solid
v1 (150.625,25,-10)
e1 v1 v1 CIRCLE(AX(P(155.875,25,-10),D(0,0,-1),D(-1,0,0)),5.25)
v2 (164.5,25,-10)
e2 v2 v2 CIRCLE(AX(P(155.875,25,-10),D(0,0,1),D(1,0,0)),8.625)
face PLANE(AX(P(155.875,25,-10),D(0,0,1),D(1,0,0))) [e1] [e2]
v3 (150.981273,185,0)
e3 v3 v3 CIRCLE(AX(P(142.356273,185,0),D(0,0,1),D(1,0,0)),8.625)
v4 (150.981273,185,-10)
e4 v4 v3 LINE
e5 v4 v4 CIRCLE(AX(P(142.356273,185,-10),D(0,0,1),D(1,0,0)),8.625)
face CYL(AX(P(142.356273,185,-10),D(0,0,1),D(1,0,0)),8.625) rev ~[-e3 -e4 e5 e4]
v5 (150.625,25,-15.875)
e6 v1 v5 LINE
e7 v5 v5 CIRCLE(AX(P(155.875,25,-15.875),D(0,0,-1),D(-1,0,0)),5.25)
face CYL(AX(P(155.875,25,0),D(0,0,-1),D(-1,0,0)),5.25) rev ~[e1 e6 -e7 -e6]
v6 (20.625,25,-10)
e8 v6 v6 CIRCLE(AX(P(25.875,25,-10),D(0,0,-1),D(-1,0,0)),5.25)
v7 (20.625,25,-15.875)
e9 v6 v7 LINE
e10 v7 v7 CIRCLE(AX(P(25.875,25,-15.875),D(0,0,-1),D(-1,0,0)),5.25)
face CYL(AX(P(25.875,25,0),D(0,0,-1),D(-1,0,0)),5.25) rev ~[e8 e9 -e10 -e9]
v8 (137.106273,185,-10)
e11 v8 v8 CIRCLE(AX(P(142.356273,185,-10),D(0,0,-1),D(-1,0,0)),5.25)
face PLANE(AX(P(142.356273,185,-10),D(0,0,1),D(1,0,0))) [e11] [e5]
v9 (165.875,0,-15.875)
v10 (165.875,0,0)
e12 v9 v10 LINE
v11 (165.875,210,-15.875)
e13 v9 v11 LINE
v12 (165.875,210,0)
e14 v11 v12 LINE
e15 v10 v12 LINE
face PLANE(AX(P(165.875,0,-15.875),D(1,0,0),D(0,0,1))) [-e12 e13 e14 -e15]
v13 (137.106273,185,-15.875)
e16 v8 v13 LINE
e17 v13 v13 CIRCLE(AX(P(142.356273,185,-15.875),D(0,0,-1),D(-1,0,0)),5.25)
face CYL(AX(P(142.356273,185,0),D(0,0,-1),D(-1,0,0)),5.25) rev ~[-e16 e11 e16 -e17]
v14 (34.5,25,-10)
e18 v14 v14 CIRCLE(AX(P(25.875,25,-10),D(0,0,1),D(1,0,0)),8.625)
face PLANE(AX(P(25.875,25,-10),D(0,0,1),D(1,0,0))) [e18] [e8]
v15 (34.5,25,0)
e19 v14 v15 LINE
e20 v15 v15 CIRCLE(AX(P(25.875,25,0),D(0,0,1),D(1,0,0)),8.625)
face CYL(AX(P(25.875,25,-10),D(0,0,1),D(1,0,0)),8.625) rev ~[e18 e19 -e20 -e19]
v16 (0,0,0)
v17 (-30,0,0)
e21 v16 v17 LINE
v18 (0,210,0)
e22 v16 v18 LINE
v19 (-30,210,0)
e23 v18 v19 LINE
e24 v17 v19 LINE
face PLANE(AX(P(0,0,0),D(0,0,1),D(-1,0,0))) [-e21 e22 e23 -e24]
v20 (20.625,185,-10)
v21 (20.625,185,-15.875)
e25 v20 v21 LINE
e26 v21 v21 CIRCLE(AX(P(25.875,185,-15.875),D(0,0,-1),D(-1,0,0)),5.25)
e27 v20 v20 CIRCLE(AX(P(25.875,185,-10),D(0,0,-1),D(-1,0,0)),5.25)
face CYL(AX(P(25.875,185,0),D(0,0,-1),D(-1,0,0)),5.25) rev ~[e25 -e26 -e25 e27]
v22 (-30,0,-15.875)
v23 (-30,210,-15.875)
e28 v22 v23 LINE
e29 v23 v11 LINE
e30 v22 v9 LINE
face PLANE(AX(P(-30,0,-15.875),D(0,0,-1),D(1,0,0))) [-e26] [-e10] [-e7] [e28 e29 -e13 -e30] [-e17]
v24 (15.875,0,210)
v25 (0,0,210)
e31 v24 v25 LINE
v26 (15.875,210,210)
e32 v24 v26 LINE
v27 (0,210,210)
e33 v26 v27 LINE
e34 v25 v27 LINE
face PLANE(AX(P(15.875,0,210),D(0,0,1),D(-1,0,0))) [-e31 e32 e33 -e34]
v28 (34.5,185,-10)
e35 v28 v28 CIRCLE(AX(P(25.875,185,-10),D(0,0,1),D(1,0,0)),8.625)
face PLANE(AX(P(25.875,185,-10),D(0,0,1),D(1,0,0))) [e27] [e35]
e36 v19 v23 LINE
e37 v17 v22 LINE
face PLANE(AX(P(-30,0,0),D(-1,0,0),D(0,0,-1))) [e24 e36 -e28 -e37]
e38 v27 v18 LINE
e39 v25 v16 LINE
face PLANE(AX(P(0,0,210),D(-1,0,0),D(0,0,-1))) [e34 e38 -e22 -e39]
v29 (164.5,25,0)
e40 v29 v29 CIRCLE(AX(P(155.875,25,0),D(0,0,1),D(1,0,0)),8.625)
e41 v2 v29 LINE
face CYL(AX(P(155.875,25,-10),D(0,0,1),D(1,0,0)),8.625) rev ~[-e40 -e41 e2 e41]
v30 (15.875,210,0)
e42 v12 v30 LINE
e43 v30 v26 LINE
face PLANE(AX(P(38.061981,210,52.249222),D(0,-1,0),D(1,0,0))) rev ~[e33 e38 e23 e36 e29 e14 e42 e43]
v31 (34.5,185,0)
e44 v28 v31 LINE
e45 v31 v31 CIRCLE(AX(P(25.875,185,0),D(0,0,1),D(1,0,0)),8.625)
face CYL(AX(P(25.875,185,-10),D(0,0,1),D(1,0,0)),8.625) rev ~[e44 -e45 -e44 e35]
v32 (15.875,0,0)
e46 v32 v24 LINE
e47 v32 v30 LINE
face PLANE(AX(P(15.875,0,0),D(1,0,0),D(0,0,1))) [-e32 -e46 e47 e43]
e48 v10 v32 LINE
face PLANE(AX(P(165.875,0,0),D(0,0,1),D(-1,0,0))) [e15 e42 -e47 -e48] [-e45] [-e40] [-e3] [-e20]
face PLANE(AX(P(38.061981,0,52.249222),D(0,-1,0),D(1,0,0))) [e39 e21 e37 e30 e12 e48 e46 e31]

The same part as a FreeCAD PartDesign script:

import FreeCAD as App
import Part
import Sketcher
from FreeCAD import Vector

doc = App.newDocument("Part")
body = doc.addObject("PartDesign::Body", "Body")

# Sketch on XZ plane
sketch1 = body.newObject("Sketcher::SketchObject", "Sketch")
sketch1.AttachmentSupport = (doc.getObject("XZ_Plane"), [""])
sketch1.MapMode = "FlatFace"
sketch1.addGeometry([
    Part.LineSegment(Vector(0, 210, 0), Vector(0, 0, 0)),  # 0
    Part.LineSegment(Vector(0, 0, 0), Vector(-30, 0, 0)),  # 1
    Part.LineSegment(Vector(-30, 0, 0), Vector(-30, -16, 0)),  # 2
    Part.LineSegment(Vector(-30, -16, 0), Vector(166, -16, 0)),  # 3
    Part.LineSegment(Vector(166, -16, 0), Vector(166, 0, 0)),  # 4
    Part.LineSegment(Vector(166, 0, 0), Vector(16, 0, 0)),  # 5
    Part.LineSegment(Vector(16, 0, 0), Vector(16, 210, 0)),  # 6
    Part.LineSegment(Vector(16, 210, 0), Vector(0, 210, 0)),  # 7
], False)
sketch1.addConstraint([
    Sketcher.Constraint("Coincident", 0, 2, 1, 1),
    Sketcher.Constraint("Coincident", 1, 2, 2, 1),
    Sketcher.Constraint("Coincident", 2, 2, 3, 1),
    Sketcher.Constraint("Coincident", 3, 2, 4, 1),
    Sketcher.Constraint("Coincident", 4, 2, 5, 1),
    Sketcher.Constraint("Coincident", 5, 2, 6, 1),
    Sketcher.Constraint("Coincident", 6, 2, 7, 1),
    Sketcher.Constraint("Coincident", 7, 2, 0, 1),
    Sketcher.Constraint("Vertical", 0),
    Sketcher.Constraint("Horizontal", 1),
    Sketcher.Constraint("Vertical", 2),
    Sketcher.Constraint("Horizontal", 3),
    Sketcher.Constraint("Vertical", 4),
    Sketcher.Constraint("Horizontal", 5),
    Sketcher.Constraint("Vertical", 6),
    Sketcher.Constraint("Horizontal", 7),
    Sketcher.Constraint("Coincident", 0, 2, -1, 1),
    Sketcher.Constraint("PointOnObject", 4, 2, -1),
    Sketcher.Constraint("Equal", 7, 2),
    Sketcher.Constraint("DistanceX", 1, 2, 1, 1, 30.0),
    Sketcher.Constraint("DistanceX", 5, 2, 5, 1, 150.0),
    Sketcher.Constraint("DistanceY", 0, 2, 0, 1, 210.0),
    Sketcher.Constraint("DistanceX", 3, 1, 3, 2, 195.875),
])
pad1 = body.newObject("PartDesign::Pad", "Pad")
pad1.Profile = sketch1
pad1.Length = 210
pad1.Reversed = True

# Sketch on XY plane
sketch2 = body.newObject("Sketcher::SketchObject", "Sketch001")
sketch2.AttachmentSupport = (doc.getObject("XY_Plane"), [""])
sketch2.MapMode = "FlatFace"
sketch2.addGeometry([
    Part.Circle(Vector(26, 25, 0), Vector(0, 0, 1), 5),
    Part.Circle(Vector(156, 25, 0), Vector(0, 0, 1), 5),
    Part.Circle(Vector(142, 185, 0), Vector(0, 0, 1), 5),
    Part.Circle(Vector(26, 185, 0), Vector(0, 0, 1), 5),
], False)
sketch2.addConstraint([
    Sketcher.Constraint("Equal", 0, 1),
    Sketcher.Constraint("Equal", 1, 2),
    Sketcher.Constraint("Equal", 2, 3),
    Sketcher.Constraint("Horizontal", 0, 3, 1, 3),
    Sketcher.Constraint("Horizontal", 2, 3, 3, 3),
    Sketcher.Constraint("Vertical", 0, 3, 3, 3),
    Sketcher.Constraint("Diameter", 0, 10.5),
    Sketcher.Constraint("DistanceY", -1, 1, 0, 3, 25.0),
    Sketcher.Constraint("DistanceY", -1, 1, 2, 3, 185.0),
    Sketcher.Constraint("DistanceX", 0, 3, 1, 3, 130.0),
    Sketcher.Constraint("DistanceX", -1, 1, 0, 3, 25.875),
    Sketcher.Constraint("DistanceX", -1, 1, 2, 3, 142.356273),
])
doc.recompute()
hole = body.newObject("PartDesign::Hole", "Hole")
hole.Profile = sketch2
hole.ThreadType = "None"
hole.Diameter = 10.5
hole.DepthType = "ThroughAll"
hole.HoleCutType = "Counterbore"
hole.HoleCutDiameter = 17.25
hole.HoleCutDepth = 10

doc.recompute()
